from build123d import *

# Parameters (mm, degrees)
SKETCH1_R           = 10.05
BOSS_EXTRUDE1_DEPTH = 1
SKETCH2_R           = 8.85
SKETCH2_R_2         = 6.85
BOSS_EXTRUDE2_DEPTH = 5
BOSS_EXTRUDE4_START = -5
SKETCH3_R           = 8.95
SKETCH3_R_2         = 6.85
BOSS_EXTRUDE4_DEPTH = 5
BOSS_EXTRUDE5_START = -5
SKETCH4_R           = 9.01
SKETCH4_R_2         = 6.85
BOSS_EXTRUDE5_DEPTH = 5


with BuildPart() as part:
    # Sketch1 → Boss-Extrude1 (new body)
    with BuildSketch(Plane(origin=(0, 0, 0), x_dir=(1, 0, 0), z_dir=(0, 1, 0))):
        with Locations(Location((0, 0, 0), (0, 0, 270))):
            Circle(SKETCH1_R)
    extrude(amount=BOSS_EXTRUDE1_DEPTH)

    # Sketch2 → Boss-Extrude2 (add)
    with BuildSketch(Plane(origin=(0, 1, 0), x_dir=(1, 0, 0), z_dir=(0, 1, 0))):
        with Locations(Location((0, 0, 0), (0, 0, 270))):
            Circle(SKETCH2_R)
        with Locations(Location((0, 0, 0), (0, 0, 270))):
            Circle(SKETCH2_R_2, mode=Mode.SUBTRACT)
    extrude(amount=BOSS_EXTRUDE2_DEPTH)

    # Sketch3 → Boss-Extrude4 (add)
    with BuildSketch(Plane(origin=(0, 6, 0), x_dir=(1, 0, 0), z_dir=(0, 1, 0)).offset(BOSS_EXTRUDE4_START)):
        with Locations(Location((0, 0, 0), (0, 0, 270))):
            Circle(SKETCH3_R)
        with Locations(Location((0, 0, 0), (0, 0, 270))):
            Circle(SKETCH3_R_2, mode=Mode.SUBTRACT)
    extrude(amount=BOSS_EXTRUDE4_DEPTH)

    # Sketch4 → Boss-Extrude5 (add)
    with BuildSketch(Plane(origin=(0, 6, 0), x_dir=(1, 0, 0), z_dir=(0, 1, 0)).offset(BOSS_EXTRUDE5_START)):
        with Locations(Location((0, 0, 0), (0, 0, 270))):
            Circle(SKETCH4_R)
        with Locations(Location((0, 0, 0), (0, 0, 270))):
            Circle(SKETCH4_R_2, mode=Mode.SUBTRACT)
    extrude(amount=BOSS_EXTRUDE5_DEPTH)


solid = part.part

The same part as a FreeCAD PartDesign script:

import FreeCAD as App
import Part
import Sketcher
Q = App.Units.Quantity

doc = App.newDocument("Part")
body = doc.addObject("PartDesign::Body", "Body")

# Sketch on XZ plane
sketch1 = body.newObject("Sketcher::SketchObject", "Sketch")
sketch1.AttachmentSupport = (doc.getObject("XZ_Plane"), [""])
sketch1.MapMode = "FlatFace"
sketch1.addGeometry(Part.Circle(App.Vector(0, 0, 0), App.Vector(0, 0, 1), 10), False)
sketch1.addConstraint([
    Sketcher.Constraint("Coincident", 0, 3, -1, 1),
    Sketcher.Constraint("Diameter", 0, Q("20.1 mm")),
])
pad1 = body.newObject("PartDesign::Pad", "Pad")
pad1.Profile = sketch1
pad1.Length = 1
pad1.Reversed = True

# Sketch on XZ plane
sketch2 = body.newObject("Sketcher::SketchObject", "Sketch001")
sketch2.AttachmentSupport = (doc.getObject("XZ_Plane"), [""])
sketch2.MapMode = "FlatFace"
sketch2.AttachmentOffset = App.Placement(App.Vector(0, 0, -1), App.Rotation())
sketch2.addGeometry([
    Part.Circle(App.Vector(0, 0, 0), App.Vector(0, 0, 1), 9),
    Part.Circle(App.Vector(0, 0, 0), App.Vector(0, 0, 1), 7),
], False)
sketch2.addConstraint([
    Sketcher.Constraint("Coincident", 0, 3, -1, 1),
    Sketcher.Constraint("Coincident", 1, 3, -1, 1),
    Sketcher.Constraint("Diameter", 0, Q("17.7 mm")),
    Sketcher.Constraint("Diameter", 1, Q("13.7 mm")),
])
pad2 = body.newObject("PartDesign::Pad", "Pad001")
pad2.Profile = sketch2
pad2.Length = 5
pad2.Reversed = True

# Sketch on XZ plane
sketch3 = body.newObject("Sketcher::SketchObject", "Sketch002")
sketch3.AttachmentSupport = (doc.getObject("XZ_Plane"), [""])
sketch3.MapMode = "FlatFace"
sketch3.AttachmentOffset = App.Placement(App.Vector(0, 0, -1), App.Rotation())
sketch3.addGeometry([
    Part.Circle(App.Vector(0, 0, 0), App.Vector(0, 0, 1), 9),
    Part.Circle(App.Vector(0, 0, 0), App.Vector(0, 0, 1), 7),
], False)
sketch3.addConstraint([
    Sketcher.Constraint("Coincident", 0, 3, -1, 1),
    Sketcher.Constraint("Coincident", 1, 3, -1, 1),
    Sketcher.Constraint("Diameter", 0, Q("17.9 mm")),
    Sketcher.Constraint("Diameter", 1, Q("13.7 mm")),
])
pad3 = body.newObject("PartDesign::Pad", "Pad002")
pad3.Profile = sketch3
pad3.Length = 5
pad3.Reversed = True

# Sketch on XZ plane
sketch4 = body.newObject("Sketcher::SketchObject", "Sketch003")
sketch4.AttachmentSupport = (doc.getObject("XZ_Plane"), [""])
sketch4.MapMode = "FlatFace"
sketch4.AttachmentOffset = App.Placement(App.Vector(0, 0, -1), App.Rotation())
sketch4.addGeometry([
    Part.Circle(App.Vector(0, 0, 0), App.Vector(0, 0, 1), 9),
    Part.Circle(App.Vector(0, 0, 0), App.Vector(0, 0, 1), 7),
], False)
sketch4.addConstraint([
    Sketcher.Constraint("Coincident", 0, 3, -1, 1),
    Sketcher.Constraint("Coincident", 1, 3, -1, 1),
    Sketcher.Constraint("Diameter", 1, Q("13.7 mm")),
    Sketcher.Constraint("Diameter", 0, Q("18.02 mm")),
])
pad4 = body.newObject("PartDesign::Pad", "Pad003")
pad4.Profile = sketch4
pad4.Length = 5
pad4.Reversed = True

doc.recompute()
